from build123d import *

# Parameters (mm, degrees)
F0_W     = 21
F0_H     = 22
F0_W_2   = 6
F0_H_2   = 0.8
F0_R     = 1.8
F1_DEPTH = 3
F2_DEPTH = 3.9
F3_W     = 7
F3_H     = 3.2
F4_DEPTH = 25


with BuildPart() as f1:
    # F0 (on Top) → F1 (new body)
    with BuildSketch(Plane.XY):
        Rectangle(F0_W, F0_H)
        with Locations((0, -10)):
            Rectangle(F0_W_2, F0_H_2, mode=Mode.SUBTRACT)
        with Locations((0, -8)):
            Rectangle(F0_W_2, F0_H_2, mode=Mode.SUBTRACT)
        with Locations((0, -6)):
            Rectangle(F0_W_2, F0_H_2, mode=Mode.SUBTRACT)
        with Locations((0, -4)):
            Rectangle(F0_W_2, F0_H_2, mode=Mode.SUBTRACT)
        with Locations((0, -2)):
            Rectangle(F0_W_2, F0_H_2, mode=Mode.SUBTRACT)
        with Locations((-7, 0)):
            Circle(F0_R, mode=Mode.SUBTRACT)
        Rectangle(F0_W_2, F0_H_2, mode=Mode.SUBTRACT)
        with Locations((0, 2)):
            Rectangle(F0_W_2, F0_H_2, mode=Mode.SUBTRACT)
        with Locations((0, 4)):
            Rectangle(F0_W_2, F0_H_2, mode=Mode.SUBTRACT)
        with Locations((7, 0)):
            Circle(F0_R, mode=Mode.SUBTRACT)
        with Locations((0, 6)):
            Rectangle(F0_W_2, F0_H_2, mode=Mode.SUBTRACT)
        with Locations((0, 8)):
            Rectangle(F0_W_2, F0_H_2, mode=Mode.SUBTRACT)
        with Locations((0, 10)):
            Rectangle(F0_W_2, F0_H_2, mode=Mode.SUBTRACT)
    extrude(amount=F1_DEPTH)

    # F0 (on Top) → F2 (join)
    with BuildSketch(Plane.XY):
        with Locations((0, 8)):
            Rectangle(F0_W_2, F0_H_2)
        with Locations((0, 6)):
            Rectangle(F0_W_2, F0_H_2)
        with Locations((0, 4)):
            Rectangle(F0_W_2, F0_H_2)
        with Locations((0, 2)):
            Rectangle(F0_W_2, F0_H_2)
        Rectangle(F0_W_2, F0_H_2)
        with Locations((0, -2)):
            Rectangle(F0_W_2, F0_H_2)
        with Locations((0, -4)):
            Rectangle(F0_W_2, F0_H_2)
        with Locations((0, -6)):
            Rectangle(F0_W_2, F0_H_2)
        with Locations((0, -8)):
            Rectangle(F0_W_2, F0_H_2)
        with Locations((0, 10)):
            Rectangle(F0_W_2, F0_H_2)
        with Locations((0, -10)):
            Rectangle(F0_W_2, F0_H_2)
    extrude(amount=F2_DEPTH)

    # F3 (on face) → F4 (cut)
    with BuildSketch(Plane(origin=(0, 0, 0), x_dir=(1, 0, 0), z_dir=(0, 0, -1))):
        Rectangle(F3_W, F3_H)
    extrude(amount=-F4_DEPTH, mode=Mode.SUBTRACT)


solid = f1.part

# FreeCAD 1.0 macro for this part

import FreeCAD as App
import Part
import Sketcher

V = App.Vector

doc = App.newDocument("Part")
body = doc.addObject("PartDesign::Body", "Body")

sketch1 = body.newObject("Sketcher::SketchObject", "Sketch")
sketch1.AttachmentSupport = (doc.getObject("XY_Plane"), [""])
sketch1.MapMode = "FlatFace"
sketch1.addGeometry([
    Part.LineSegment(V(-10.5, 11, 0), V(-10.5, -11, 0)),
    Part.LineSegment(V(-10.5, -11, 0), V(10.5, -11, 0)),
    Part.LineSegment(V(10.5, -11, 0), V(10.5, 11, 0)),
    Part.LineSegment(V(10.5, 11, 0), V(-10.5, 11, 0)),
    Part.LineSegment(V(3, -10.4, 0), V(-3, -10.4, 0)),
    Part.LineSegment(V(-3, -10.4, 0), V(-3, -9.6, 0)),
    Part.LineSegment(V(-3, -9.6, 0), V(3, -9.6, 0)),
    Part.LineSegment(V(3, -9.6, 0), V(3, -10.4, 0)),
    Part.LineSegment(V(3, -8.4, 0), V(-3, -8.4, 0)),
    Part.LineSegment(V(-3, -8.4, 0), V(-3, -7.6, 0)),
    Part.LineSegment(V(-3, -7.6, 0), V(3, -7.6, 0)),
    Part.LineSegment(V(3, -7.6, 0), V(3, -8.4, 0)),
    Part.LineSegment(V(3, -6.4, 0), V(-3, -6.4, 0)),
    Part.LineSegment(V(-3, -6.4, 0), V(-3, -5.6, 0)),
    Part.LineSegment(V(-3, -5.6, 0), V(3, -5.6, 0)),
    Part.LineSegment(V(3, -5.6, 0), V(3, -6.4, 0)),
    Part.LineSegment(V(3, -4.4, 0), V(-3, -4.4, 0)),
    Part.LineSegment(V(-3, -4.4, 0), V(-3, -3.6, 0)),
    Part.LineSegment(V(-3, -3.6, 0), V(3, -3.6, 0)),
    Part.LineSegment(V(3, -3.6, 0), V(3, -4.4, 0)),
    Part.LineSegment(V(3, -2.4, 0), V(-3, -2.4, 0)),
    Part.LineSegment(V(-3, -2.4, 0), V(-3, -1.6, 0)),
    Part.LineSegment(V(-3, -1.6, 0), V(3, -1.6, 0)),
    Part.LineSegment(V(3, -1.6, 0), V(3, -2.4, 0)),
    Part.Circle(V(-7, 0, 0), V(0, 0, 1), 1.8),
    Part.LineSegment(V(3, -0.4, 0), V(-3, -0.4, 0)),
    Part.LineSegment(V(-3, -0.4, 0), V(-3, 0.4, 0)),
    Part.LineSegment(V(-3, 0.4, 0), V(3, 0.4, 0)),
    Part.LineSegment(V(3, 0.4, 0), V(3, -0.4, 0)),
    Part.LineSegment(V(3, 1.6, 0), V(-3, 1.6, 0)),
    Part.LineSegment(V(-3, 1.6, 0), V(-3, 2.4, 0)),
    Part.LineSegment(V(-3, 2.4, 0), V(3, 2.4, 0)),
    Part.LineSegment(V(3, 2.4, 0), V(3, 1.6, 0)),
    Part.LineSegment(V(3, 3.6, 0), V(-3, 3.6, 0)),
    Part.LineSegment(V(-3, 3.6, 0), V(-3, 4.4, 0)),
    Part.LineSegment(V(-3, 4.4, 0), V(3, 4.4, 0)),
    Part.LineSegment(V(3, 4.4, 0), V(3, 3.6, 0)),
    Part.Circle(V(7, 0, 0), V(0, 0, 1), 1.8),
    Part.LineSegment(V(3, 5.6, 0), V(-3, 5.6, 0)),
    Part.LineSegment(V(-3, 5.6, 0), V(-3, 6.4, 0)),
    Part.LineSegment(V(-3, 6.4, 0), V(3, 6.4, 0)),
    Part.LineSegment(V(3, 6.4, 0), V(3, 5.6, 0)),
    Part.LineSegment(V(3, 7.6, 0), V(-3, 7.6, 0)),
    Part.LineSegment(V(-3, 7.6, 0), V(-3, 8.4, 0)),
    Part.LineSegment(V(-3, 8.4, 0), V(3, 8.4, 0)),
    Part.LineSegment(V(3, 8.4, 0), V(3, 7.6, 0)),
    Part.LineSegment(V(3, 9.6, 0), V(-3, 9.6, 0)),
    Part.LineSegment(V(-3, 9.6, 0), V(-3, 10.4, 0)),
    Part.LineSegment(V(-3, 10.4, 0), V(3, 10.4, 0)),
    Part.LineSegment(V(3, 10.4, 0), V(3, 9.6, 0)),
], False)
sketch1.addConstraint([
    Sketcher.Constraint("Coincident", 0, 2, 1, 1),
    Sketcher.Constraint("Coincident", 1, 2, 2, 1),
    Sketcher.Constraint("Coincident", 2, 2, 3, 1),
    Sketcher.Constraint("Coincident", 3, 2, 0, 1),
    Sketcher.Constraint("Coincident", 4, 2, 5, 1),
    Sketcher.Constraint("Coincident", 5, 2, 6, 1),
    Sketcher.Constraint("Coincident", 6, 2, 7, 1),
    Sketcher.Constraint("Coincident", 7, 2, 4, 1),
    Sketcher.Constraint("Coincident", 8, 2, 9, 1),
    Sketcher.Constraint("Coincident", 9, 2, 10, 1),
    Sketcher.Constraint("Coincident", 10, 2, 11, 1),
    Sketcher.Constraint("Coincident", 11, 2, 8, 1),
    Sketcher.Constraint("Coincident", 12, 2, 13, 1),
    Sketcher.Constraint("Coincident", 13, 2, 14, 1),
    Sketcher.Constraint("Coincident", 14, 2, 15, 1),
    Sketcher.Constraint("Coincident", 15, 2, 12, 1),
    Sketcher.Constraint("Coincident", 16, 2, 17, 1),
    Sketcher.Constraint("Coincident", 17, 2, 18, 1),
    Sketcher.Constraint("Coincident", 18, 2, 19, 1),
    Sketcher.Constraint("Coincident", 19, 2, 16, 1),
    Sketcher.Constraint("Coincident", 20, 2, 21, 1),
    Sketcher.Constraint("Coincident", 21, 2, 22, 1),
    Sketcher.Constraint("Coincident", 22, 2, 23, 1),
    Sketcher.Constraint("Coincident", 23, 2, 20, 1),
    Sketcher.Constraint("Coincident", 25, 2, 26, 1),
    Sketcher.Constraint("Coincident", 26, 2, 27, 1),
    Sketcher.Constraint("Coincident", 27, 2, 28, 1),
    Sketcher.Constraint("Coincident", 28, 2, 25, 1),
    Sketcher.Constraint("Coincident", 29, 2, 30, 1),
    Sketcher.Constraint("Coincident", 30, 2, 31, 1),
    Sketcher.Constraint("Coincident", 31, 2, 32, 1),
    Sketcher.Constraint("Coincident", 32, 2, 29, 1),
    Sketcher.Constraint("Coincident", 33, 2, 34, 1),
    Sketcher.Constraint("Coincident", 34, 2, 35, 1),
    Sketcher.Constraint("Coincident", 35, 2, 36, 1),
    Sketcher.Constraint("Coincident", 36, 2, 33, 1),
    Sketcher.Constraint("Coincident", 38, 2, 39, 1),
    Sketcher.Constraint("Coincident", 39, 2, 40, 1),
    Sketcher.Constraint("Coincident", 40, 2, 41, 1),
    Sketcher.Constraint("Coincident", 41, 2, 38, 1),
    Sketcher.Constraint("Coincident", 42, 2, 43, 1),
    Sketcher.Constraint("Coincident", 43, 2, 44, 1),
    Sketcher.Constraint("Coincident", 44, 2, 45, 1),
    Sketcher.Constraint("Coincident", 45, 2, 42, 1),
    Sketcher.Constraint("Coincident", 46, 2, 47, 1),
    Sketcher.Constraint("Coincident", 47, 2, 48, 1),
    Sketcher.Constraint("Coincident", 48, 2, 49, 1),
    Sketcher.Constraint("Coincident", 49, 2, 46, 1),
    Sketcher.Constraint("Vertical", 0),
    Sketcher.Constraint("Horizontal", 1),
    Sketcher.Constraint("Vertical", 2),
    Sketcher.Constraint("Horizontal", 3),
    Sketcher.Constraint("Horizontal", 4),
    Sketcher.Constraint("Vertical", 5),
    Sketcher.Constraint("Horizontal", 6),
    Sketcher.Constraint("Vertical", 7),
    Sketcher.Constraint("Horizontal", 8),
    Sketcher.Constraint("Vertical", 9),
    Sketcher.Constraint("Horizontal", 10),
    Sketcher.Constraint("Vertical", 11),
    Sketcher.Constraint("Horizontal", 12),
    Sketcher.Constraint("Vertical", 13),
    Sketcher.Constraint("Horizontal", 14),
    Sketcher.Constraint("Vertical", 15),
    Sketcher.Constraint("Horizontal", 16),
    Sketcher.Constraint("Vertical", 17),
    Sketcher.Constraint("Horizontal", 18),
    Sketcher.Constraint("Vertical", 19),
    Sketcher.Constraint("Horizontal", 20),
    Sketcher.Constraint("Vertical", 21),
    Sketcher.Constraint("Horizontal", 22),
    Sketcher.Constraint("Vertical", 23),
    Sketcher.Constraint("Horizontal", 25),
    Sketcher.Constraint("Vertical", 26),
    Sketcher.Constraint("Horizontal", 27),
    Sketcher.Constraint("Vertical", 28),
    Sketcher.Constraint("Horizontal", 29),
    Sketcher.Constraint("Vertical", 30),
    Sketcher.Constraint("Horizontal", 31),
    Sketcher.Constraint("Vertical", 32),
    Sketcher.Constraint("Horizontal", 33),
    Sketcher.Constraint("Vertical", 34),
    Sketcher.Constraint("Horizontal", 35),
    Sketcher.Constraint("Vertical", 36),
    Sketcher.Constraint("Horizontal", 38),
    Sketcher.Constraint("Vertical", 39),
    Sketcher.Constraint("Horizontal", 40),
    Sketcher.Constraint("Vertical", 41),
    Sketcher.Constraint("Horizontal", 42),
    Sketcher.Constraint("Vertical", 43),
    Sketcher.Constraint("Horizontal", 44),
    Sketcher.Constraint("Vertical", 45),
    Sketcher.Constraint("Horizontal", 46),
    Sketcher.Constraint("Vertical", 47),
    Sketcher.Constraint("Horizontal", 48),
    Sketcher.Constraint("Vertical", 49),
    Sketcher.Constraint("Equal", 24, 37),
    Sketcher.Constraint("Symmetric", 24, 3, 37, 3, -1, 1),
    Sketcher.Constraint("Symmetric", 0, 2, 2, 2, -1, 1),
    Sketcher.Constraint("Symmetric", 25, 2, 27, 2, -1, 1),
    Sketcher.Constraint("Symmetric", 22, 2, 29, 2, -1, 1),
    Sketcher.Constraint("Symmetric", 20, 2, 31, 2, -1, 1),
    Sketcher.Constraint("Symmetric", 18, 2, 33, 2, -1, 1),
    Sketcher.Constraint("Symmetric", 16, 2, 35, 2, -1, 1),
    Sketcher.Constraint("Symmetric", 14, 2, 38, 2, -1, 1),
    Sketcher.Constraint("Symmetric", 12, 2, 40, 2, -1, 1),
    Sketcher.Constraint("Symmetric", 10, 2, 42, 2, -1, 1),
    Sketcher.Constraint("Symmetric", 8, 2, 44, 2, -1, 1),
    Sketcher.Constraint("Symmetric", 6, 2, 46, 2, -1, 1),
    Sketcher.Constraint("Symmetric", 4, 2, 48, 2, -1, 1),
    Sketcher.Constraint("PointOnObject", 24, 3, -1),
    Sketcher.Constraint("Vertical", 5, 2, 8, 2),
    Sketcher.Constraint("Vertical", 7, 2, 10, 2),
    Sketcher.Constraint("Vertical", 9, 2, 12, 2),
    Sketcher.Constraint("Vertical", 11, 2, 14, 2),
    Sketcher.Constraint("Vertical", 13, 2, 16, 2),
    Sketcher.Constraint("Vertical", 15, 2, 18, 2),
    Sketcher.Constraint("Vertical", 17, 2, 20, 2),
    Sketcher.Constraint("Vertical", 19, 2, 22, 2),
    Sketcher.Constraint("Vertical", 21, 2, 25, 2),
    Sketcher.Constraint("Vertical", 23, 2, 27, 2),
    Sketcher.Constraint("Equal", 7, 9),
    Sketcher.Constraint("Equal", 11, 13),
    Sketcher.Constraint("Equal", 15, 17),
    Sketcher.Constraint("Equal", 19, 21),
    Sketcher.Constraint("Equal", 23, 26),
    Sketcher.Constraint("Diameter", 24, 3.6),
    Sketcher.Constraint("DistanceX", 1, 1, 1, 2, 21.0),
    Sketcher.Constraint("DistanceX", 4, 2, 4, 1, 6.0),
    Sketcher.Constraint("DistanceY", 0, 2, 0, 1, 22.0),
    Sketcher.Constraint("DistanceY", 5, 1, 5, 2, 0.8),
    Sketcher.Constraint("DistanceX", 24, 3, -1, 1, 7.0),
    Sketcher.Constraint("DistanceY", 4, 2, 8, 2, 2.0),
    Sketcher.Constraint("DistanceY", 8, 2, 12, 2, 2.0),
    Sketcher.Constraint("DistanceY", 12, 2, 16, 2, 2.0),
    Sketcher.Constraint("DistanceY", 16, 2, 20, 2, 2.0),
    Sketcher.Constraint("DistanceY", 20, 2, 25, 2, 2.0),
])
pad1 = body.newObject("PartDesign::Pad", "Pad")
pad1.Profile = sketch1
pad1.Length = 3

sketch2 = body.newObject("Sketcher::SketchObject", "Sketch001")
sketch2.AttachmentSupport = (doc.getObject("XY_Plane"), [""])
sketch2.MapMode = "FlatFace"
sketch2.addGeometry([
    Part.LineSegment(V(-3, 8.4, 0), V(-3, 7.6, 0)),
    Part.LineSegment(V(-3, 7.6, 0), V(3, 7.6, 0)),
    Part.LineSegment(V(3, 7.6, 0), V(3, 8.4, 0)),
    Part.LineSegment(V(3, 8.4, 0), V(-3, 8.4, 0)),
    Part.LineSegment(V(-3, 6.4, 0), V(-3, 5.6, 0)),
    Part.LineSegment(V(-3, 5.6, 0), V(3, 5.6, 0)),
    Part.LineSegment(V(3, 5.6, 0), V(3, 6.4, 0)),
    Part.LineSegment(V(3, 6.4, 0), V(-3, 6.4, 0)),
    Part.LineSegment(V(-3, 4.4, 0), V(-3, 3.6, 0)),
    Part.LineSegment(V(-3, 3.6, 0), V(3, 3.6, 0)),
    Part.LineSegment(V(3, 3.6, 0), V(3, 4.4, 0)),
    Part.LineSegment(V(3, 4.4, 0), V(-3, 4.4, 0)),
    Part.LineSegment(V(-3, 2.4, 0), V(-3, 1.6, 0)),
    Part.LineSegment(V(-3, 1.6, 0), V(3, 1.6, 0)),
    Part.LineSegment(V(3, 1.6, 0), V(3, 2.4, 0)),
    Part.LineSegment(V(3, 2.4, 0), V(-3, 2.4, 0)),
    Part.LineSegment(V(-3, 0.4, 0), V(-3, -0.4, 0)),
    Part.LineSegment(V(-3, -0.4, 0), V(3, -0.4, 0)),
    Part.LineSegment(V(3, -0.4, 0), V(3, 0.4, 0)),
    Part.LineSegment(V(3, 0.4, 0), V(-3, 0.4, 0)),
    Part.LineSegment(V(-3, -1.6, 0), V(-3, -2.4, 0)),
    Part.LineSegment(V(-3, -2.4, 0), V(3, -2.4, 0)),
    Part.LineSegment(V(3, -2.4, 0), V(3, -1.6, 0)),
    Part.LineSegment(V(3, -1.6, 0), V(-3, -1.6, 0)),
    Part.LineSegment(V(-3, -3.6, 0), V(-3, -4.4, 0)),
    Part.LineSegment(V(-3, -4.4, 0), V(3, -4.4, 0)),
    Part.LineSegment(V(3, -4.4, 0), V(3, -3.6, 0)),
    Part.LineSegment(V(3, -3.6, 0), V(-3, -3.6, 0)),
    Part.LineSegment(V(-3, -5.6, 0), V(-3, -6.4, 0)),
    Part.LineSegment(V(-3, -6.4, 0), V(3, -6.4, 0)),
    Part.LineSegment(V(3, -6.4, 0), V(3, -5.6, 0)),
    Part.LineSegment(V(3, -5.6, 0), V(-3, -5.6, 0)),
    Part.LineSegment(V(-3, -7.6, 0), V(-3, -8.4, 0)),
    Part.LineSegment(V(-3, -8.4, 0), V(3, -8.4, 0)),
    Part.LineSegment(V(3, -8.4, 0), V(3, -7.6, 0)),
    Part.LineSegment(V(3, -7.6, 0), V(-3, -7.6, 0)),
    Part.LineSegment(V(-3, 10.4, 0), V(-3, 9.6, 0)),
    Part.LineSegment(V(-3, 9.6, 0), V(3, 9.6, 0)),
    Part.LineSegment(V(3, 9.6, 0), V(3, 10.4, 0)),
    Part.LineSegment(V(3, 10.4, 0), V(-3, 10.4, 0)),
    Part.LineSegment(V(-3, -9.6, 0), V(-3, -10.4, 0)),
    Part.LineSegment(V(-3, -10.4, 0), V(3, -10.4, 0)),
    Part.LineSegment(V(3, -10.4, 0), V(3, -9.6, 0)),
    Part.LineSegment(V(3, -9.6, 0), V(-3, -9.6, 0)),
], False)
sketch2.addConstraint([
    Sketcher.Constraint("Coincident", 0, 2, 1, 1),
    Sketcher.Constraint("Coincident", 1, 2, 2, 1),
    Sketcher.Constraint("Coincident", 2, 2, 3, 1),
    Sketcher.Constraint("Coincident", 3, 2, 0, 1),
    Sketcher.Constraint("Coincident", 4, 2, 5, 1),
    Sketcher.Constraint("Coincident", 5, 2, 6, 1),
    Sketcher.Constraint("Coincident", 6, 2, 7, 1),
    Sketcher.Constraint("Coincident", 7, 2, 4, 1),
    Sketcher.Constraint("Coincident", 8, 2, 9, 1),
    Sketcher.Constraint("Coincident", 9, 2, 10, 1),
    Sketcher.Constraint("Coincident", 10, 2, 11, 1),
    Sketcher.Constraint("Coincident", 11, 2, 8, 1),
    Sketcher.Constraint("Coincident", 12, 2, 13, 1),
    Sketcher.Constraint("Coincident", 13, 2, 14, 1),
    Sketcher.Constraint("Coincident", 14, 2, 15, 1),
    Sketcher.Constraint("Coincident", 15, 2, 12, 1),
    Sketcher.Constraint("Coincident", 16, 2, 17, 1),
    Sketcher.Constraint("Coincident", 17, 2, 18, 1),
    Sketcher.Constraint("Coincident", 18, 2, 19, 1),
    Sketcher.Constraint("Coincident", 19, 2, 16, 1),
    Sketcher.Constraint("Coincident", 20, 2, 21, 1),
    Sketcher.Constraint("Coincident", 21, 2, 22, 1),
    Sketcher.Constraint("Coincident", 22, 2, 23, 1),
    Sketcher.Constraint("Coincident", 23, 2, 20, 1),
    Sketcher.Constraint("Coincident", 24, 2, 25, 1),
    Sketcher.Constraint("Coincident", 25, 2, 26, 1),
    Sketcher.Constraint("Coincident", 26, 2, 27, 1),
    Sketcher.Constraint("Coincident", 27, 2, 24, 1),
    Sketcher.Constraint("Coincident", 28, 2, 29, 1),
    Sketcher.Constraint("Coincident", 29, 2, 30, 1),
    Sketcher.Constraint("Coincident", 30, 2, 31, 1),
    Sketcher.Constraint("Coincident", 31, 2, 28, 1),
    Sketcher.Constraint("Coincident", 32, 2, 33, 1),
    Sketcher.Constraint("Coincident", 33, 2, 34, 1),
    Sketcher.Constraint("Coincident", 34, 2, 35, 1),
    Sketcher.Constraint("Coincident", 35, 2, 32, 1),
    Sketcher.Constraint("Coincident", 36, 2, 37, 1),
    Sketcher.Constraint("Coincident", 37, 2, 38, 1),
    Sketcher.Constraint("Coincident", 38, 2, 39, 1),
    Sketcher.Constraint("Coincident", 39, 2, 36, 1),
    Sketcher.Constraint("Coincident", 40, 2, 41, 1),
    Sketcher.Constraint("Coincident", 41, 2, 42, 1),
    Sketcher.Constraint("Coincident", 42, 2, 43, 1),
    Sketcher.Constraint("Coincident", 43, 2, 40, 1),
    Sketcher.Constraint("Vertical", 0),
    Sketcher.Constraint("Horizontal", 1),
    Sketcher.Constraint("Vertical", 2),
    Sketcher.Constraint("Horizontal", 3),
    Sketcher.Constraint("Vertical", 4),
    Sketcher.Constraint("Horizontal", 5),
    Sketcher.Constraint("Vertical", 6),
    Sketcher.Constraint("Horizontal", 7),
    Sketcher.Constraint("Vertical", 8),
    Sketcher.Constraint("Horizontal", 9),
    Sketcher.Constraint("Vertical", 10),
    Sketcher.Constraint("Horizontal", 11),
    Sketcher.Constraint("Vertical", 12),
    Sketcher.Constraint("Horizontal", 13),
    Sketcher.Constraint("Vertical", 14),
    Sketcher.Constraint("Horizontal", 15),
    Sketcher.Constraint("Vertical", 16),
    Sketcher.Constraint("Horizontal", 17),
    Sketcher.Constraint("Vertical", 18),
    Sketcher.Constraint("Horizontal", 19),
    Sketcher.Constraint("Vertical", 20),
    Sketcher.Constraint("Horizontal", 21),
    Sketcher.Constraint("Vertical", 22),
    Sketcher.Constraint("Horizontal", 23),
    Sketcher.Constraint("Vertical", 24),
    Sketcher.Constraint("Horizontal", 25),
    Sketcher.Constraint("Vertical", 26),
    Sketcher.Constraint("Horizontal", 27),
    Sketcher.Constraint("Vertical", 28),
    Sketcher.Constraint("Horizontal", 29),
    Sketcher.Constraint("Vertical", 30),
    Sketcher.Constraint("Horizontal", 31),
    Sketcher.Constraint("Vertical", 32),
    Sketcher.Constraint("Horizontal", 33),
    Sketcher.Constraint("Vertical", 34),
    Sketcher.Constraint("Horizontal", 35),
    Sketcher.Constraint("Vertical", 36),
    Sketcher.Constraint("Horizontal", 37),
    Sketcher.Constraint("Vertical", 38),
    Sketcher.Constraint("Horizontal", 39),
    Sketcher.Constraint("Vertical", 40),
    Sketcher.Constraint("Horizontal", 41),
    Sketcher.Constraint("Vertical", 42),
    Sketcher.Constraint("Horizontal", 43),
    Sketcher.Constraint("Symmetric", 16, 2, 18, 2, -1, 1),
    Sketcher.Constraint("Symmetric", 14, 2, 20, 2, -1, 1),
    Sketcher.Constraint("Symmetric", 12, 2, 22, 2, -1, 1),
    Sketcher.Constraint("Symmetric", 10, 2, 24, 2, -1, 1),
    Sketcher.Constraint("Symmetric", 8, 2, 26, 2, -1, 1),
    Sketcher.Constraint("Symmetric", 6, 2, 28, 2, -1, 1),
    Sketcher.Constraint("Symmetric", 4, 2, 30, 2, -1, 1),
    Sketcher.Constraint("Symmetric", 2, 2, 32, 2, -1, 1),
    Sketcher.Constraint("Symmetric", 0, 2, 34, 2, -1, 1),
    Sketcher.Constraint("Symmetric", 38, 2, 40, 2, -1, 1),
    Sketcher.Constraint("Symmetric", 36, 2, 42, 2, -1, 1),
    Sketcher.Constraint("Vertical", 3, 2, 4, 2),
    Sketcher.Constraint("Vertical", 2, 2, 5, 2),
    Sketcher.Constraint("Vertical", 7, 2, 8, 2),
    Sketcher.Constraint("Vertical", 6, 2, 9, 2),
    Sketcher.Constraint("Vertical", 11, 2, 12, 2),
    Sketcher.Constraint("Vertical", 10, 2, 13, 2),
    Sketcher.Constraint("Vertical", 15, 2, 16, 2),
    Sketcher.Constraint("Vertical", 14, 2, 17, 2),
    Sketcher.Constraint("Vertical", 35, 2, 36, 2),
    Sketcher.Constraint("Vertical", 34, 2, 37, 2),
    Sketcher.Constraint("Equal", 2, 4),
    Sketcher.Constraint("Equal", 6, 8),
    Sketcher.Constraint("Equal", 10, 12),
    Sketcher.Constraint("Equal", 14, 16),
    Sketcher.Constraint("Equal", 34, 36),
    Sketcher.Constraint("DistanceX", 1, 1, 1, 2, 6.0),
    Sketcher.Constraint("DistanceY", 0, 2, 0, 1, 0.8),
    Sketcher.Constraint("DistanceY", 4, 2, 0, 2, 2.0),
    Sketcher.Constraint("DistanceY", 8, 2, 4, 2, 2.0),
    Sketcher.Constraint("DistanceY", 12, 2, 8, 2, 2.0),
    Sketcher.Constraint("DistanceY", 16, 2, 12, 2, 2.0),
    Sketcher.Constraint("DistanceY", 0, 2, 36, 2, 2.0),
])
pad2 = body.newObject("PartDesign::Pad", "Pad001")
pad2.Profile = sketch2
pad2.Length = 3.9

sketch3 = body.newObject("Sketcher::SketchObject", "Sketch002")
sketch3.AttachmentSupport = (doc.getObject("XY_Plane"), [""])
sketch3.MapMode = "FlatFace"
sketch3.addGeometry([
    Part.LineSegment(V(-3.5, -1.6, 0), V(-3.5, 1.6, 0)),
    Part.LineSegment(V(-3.5, 1.6, 0), V(3.5, 1.6, 0)),
    Part.LineSegment(V(3.5, 1.6, 0), V(3.5, -1.6, 0)),
    Part.LineSegment(V(3.5, -1.6, 0), V(-3.5, -1.6, 0)),
], False)
sketch3.addConstraint([
    Sketcher.Constraint("Coincident", 0, 2, 1, 1),
    Sketcher.Constraint("Coincident", 1, 2, 2, 1),
    Sketcher.Constraint("Coincident", 2, 2, 3, 1),
    Sketcher.Constraint("Coincident", 3, 2, 0, 1),
    Sketcher.Constraint("Vertical", 0),
    Sketcher.Constraint("Horizontal", 1),
    Sketcher.Constraint("Vertical", 2),
    Sketcher.Constraint("Horizontal", 3),
    Sketcher.Constraint("Symmetric", 0, 2, 2, 2, -1, 1),
    Sketcher.Constraint("DistanceX", 1, 1, 1, 2, 7.0),
    Sketcher.Constraint("DistanceY", 0, 1, 0, 2, 3.2),
])
pocket1 = body.newObject("PartDesign::Pocket", "Pocket")
pocket1.Profile = sketch3
pocket1.Length = 25
pocket1.Reversed = True

doc.recompute()
